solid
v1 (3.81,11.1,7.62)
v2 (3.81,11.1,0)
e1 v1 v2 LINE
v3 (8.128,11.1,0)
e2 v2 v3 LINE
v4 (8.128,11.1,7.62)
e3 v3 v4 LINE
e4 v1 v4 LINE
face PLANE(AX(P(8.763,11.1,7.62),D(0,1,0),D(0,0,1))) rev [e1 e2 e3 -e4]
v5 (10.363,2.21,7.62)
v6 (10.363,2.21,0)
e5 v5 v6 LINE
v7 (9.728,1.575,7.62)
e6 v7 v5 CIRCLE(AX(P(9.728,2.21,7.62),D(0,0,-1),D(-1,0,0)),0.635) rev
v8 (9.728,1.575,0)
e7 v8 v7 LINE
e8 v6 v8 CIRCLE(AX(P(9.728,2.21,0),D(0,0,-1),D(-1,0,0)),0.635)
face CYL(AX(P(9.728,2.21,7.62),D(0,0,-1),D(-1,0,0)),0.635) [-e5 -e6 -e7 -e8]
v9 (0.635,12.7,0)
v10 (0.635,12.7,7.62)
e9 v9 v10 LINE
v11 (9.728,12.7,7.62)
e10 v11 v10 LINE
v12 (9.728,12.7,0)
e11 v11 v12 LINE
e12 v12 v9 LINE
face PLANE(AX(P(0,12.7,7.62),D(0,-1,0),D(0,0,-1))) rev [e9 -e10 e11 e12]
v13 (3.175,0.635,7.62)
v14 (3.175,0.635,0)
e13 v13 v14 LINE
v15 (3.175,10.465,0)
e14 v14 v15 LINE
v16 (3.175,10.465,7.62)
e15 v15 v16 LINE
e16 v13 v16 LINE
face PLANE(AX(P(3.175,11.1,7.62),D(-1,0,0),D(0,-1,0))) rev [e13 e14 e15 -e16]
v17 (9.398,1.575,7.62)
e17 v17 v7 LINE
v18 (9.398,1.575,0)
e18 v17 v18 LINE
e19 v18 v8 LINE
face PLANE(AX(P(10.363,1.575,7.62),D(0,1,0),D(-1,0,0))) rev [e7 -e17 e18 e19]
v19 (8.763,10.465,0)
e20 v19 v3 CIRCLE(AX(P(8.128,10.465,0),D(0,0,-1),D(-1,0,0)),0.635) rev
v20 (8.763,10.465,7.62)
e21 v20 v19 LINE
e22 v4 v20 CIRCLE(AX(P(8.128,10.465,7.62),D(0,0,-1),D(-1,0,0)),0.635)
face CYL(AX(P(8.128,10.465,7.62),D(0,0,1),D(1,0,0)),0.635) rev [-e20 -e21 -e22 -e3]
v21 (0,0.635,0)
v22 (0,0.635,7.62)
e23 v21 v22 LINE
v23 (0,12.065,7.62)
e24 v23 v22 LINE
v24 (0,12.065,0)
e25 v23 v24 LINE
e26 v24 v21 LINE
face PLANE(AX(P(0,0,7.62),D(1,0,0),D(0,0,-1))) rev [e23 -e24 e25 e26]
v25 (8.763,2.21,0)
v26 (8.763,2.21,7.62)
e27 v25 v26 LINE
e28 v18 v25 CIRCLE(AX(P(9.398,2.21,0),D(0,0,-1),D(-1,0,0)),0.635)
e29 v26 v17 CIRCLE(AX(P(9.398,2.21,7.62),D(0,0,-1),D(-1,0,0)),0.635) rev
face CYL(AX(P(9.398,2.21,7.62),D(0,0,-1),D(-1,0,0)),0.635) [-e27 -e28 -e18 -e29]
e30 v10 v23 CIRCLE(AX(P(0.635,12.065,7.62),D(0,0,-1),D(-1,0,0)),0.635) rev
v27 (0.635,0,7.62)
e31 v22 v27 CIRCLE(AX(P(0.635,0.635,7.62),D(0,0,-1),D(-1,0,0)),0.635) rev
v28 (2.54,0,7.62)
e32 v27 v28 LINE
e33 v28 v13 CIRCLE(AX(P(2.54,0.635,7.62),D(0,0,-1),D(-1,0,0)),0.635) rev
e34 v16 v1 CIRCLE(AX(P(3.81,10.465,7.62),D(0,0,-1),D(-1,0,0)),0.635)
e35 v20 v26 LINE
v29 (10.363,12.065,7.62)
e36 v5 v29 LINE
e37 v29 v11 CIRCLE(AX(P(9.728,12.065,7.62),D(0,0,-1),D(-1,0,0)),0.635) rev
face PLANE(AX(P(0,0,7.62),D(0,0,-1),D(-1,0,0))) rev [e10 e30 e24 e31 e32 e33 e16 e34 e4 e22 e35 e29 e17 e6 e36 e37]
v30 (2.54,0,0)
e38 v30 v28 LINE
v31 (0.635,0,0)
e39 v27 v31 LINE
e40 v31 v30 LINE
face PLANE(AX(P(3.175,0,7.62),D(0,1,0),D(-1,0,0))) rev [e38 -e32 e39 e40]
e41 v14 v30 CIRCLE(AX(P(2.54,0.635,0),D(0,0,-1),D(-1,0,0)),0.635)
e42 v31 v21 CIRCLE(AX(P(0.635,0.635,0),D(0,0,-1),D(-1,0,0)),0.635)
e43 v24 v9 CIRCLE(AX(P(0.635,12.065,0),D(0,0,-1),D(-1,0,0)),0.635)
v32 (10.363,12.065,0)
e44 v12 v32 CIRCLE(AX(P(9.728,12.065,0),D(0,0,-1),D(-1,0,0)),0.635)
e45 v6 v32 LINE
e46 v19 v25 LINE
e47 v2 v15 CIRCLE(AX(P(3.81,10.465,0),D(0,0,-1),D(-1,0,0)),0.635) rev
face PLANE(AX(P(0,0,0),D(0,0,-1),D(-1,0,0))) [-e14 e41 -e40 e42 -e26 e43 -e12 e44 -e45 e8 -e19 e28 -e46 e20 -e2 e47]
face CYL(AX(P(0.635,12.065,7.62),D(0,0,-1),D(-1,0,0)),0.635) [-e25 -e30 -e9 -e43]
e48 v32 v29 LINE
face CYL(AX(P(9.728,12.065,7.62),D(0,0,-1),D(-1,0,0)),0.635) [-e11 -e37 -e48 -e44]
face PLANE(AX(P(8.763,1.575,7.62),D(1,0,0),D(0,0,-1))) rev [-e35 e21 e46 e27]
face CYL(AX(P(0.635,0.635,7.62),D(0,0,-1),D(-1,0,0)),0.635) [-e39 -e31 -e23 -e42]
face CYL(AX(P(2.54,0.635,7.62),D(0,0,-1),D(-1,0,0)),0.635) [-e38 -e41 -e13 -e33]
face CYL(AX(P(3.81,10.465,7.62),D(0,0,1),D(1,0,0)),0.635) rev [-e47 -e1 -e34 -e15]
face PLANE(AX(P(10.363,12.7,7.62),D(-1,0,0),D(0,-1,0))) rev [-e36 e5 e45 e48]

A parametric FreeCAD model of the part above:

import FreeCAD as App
import Part
import Sketcher
Q = App.Units.Quantity


def edges_at(feature, points):
    """Names of the edges that pass closest to the given points."""
    edges = feature.Shape.Edges
    near = lambda p: min(range(len(edges)), key=lambda i: edges[i].distToShape(Part.Vertex(*p))[0])
    return sorted({f"Edge{near(p) + 1}" for p in points})


def add_polygon(sketch, points):
    """Adds a closed chain of lines whose ends are joined by coincident constraints."""
    first, n = sketch.GeometryCount, len(points)
    for a, b in zip(points, points[1:] + points[:1]):
        sketch.addGeometry(Part.LineSegment(App.Vector(*a, 0), App.Vector(*b, 0)), False)
    for i in range(n):
        sketch.addConstraint(Sketcher.Constraint("Coincident", first + i, 2, first + (i + 1) % n, 1))

doc = App.newDocument("Part")
params = doc.addObject("Spreadsheet::Sheet", "Params")
for row, (alias, value) in enumerate([
    ("sketch1_height", "0.5 in"),
    ("sketch1_width", "0.22 in"),
    ("sketch1_width2", "0.125 in"),
    ("sketch1_height2", "0.375 in"),
    ("pad1_length", "0.3 in"),
    ("fillet_radius", "0.025 in"),
], start=1):
    params.set(f"A{row}", alias)
    params.set(f"B{row}", "=" + value)
    params.setAlias(f"B{row}", alias)

body = doc.addObject("PartDesign::Body", "Body")

sketch1 = body.newObject("Sketcher::SketchObject", "Sketch")
sketch1.AttachmentSupport = (doc.getObject("XY_Plane"), [""])
sketch1.MapMode = "FlatFace"
add_polygon(sketch1, [(0, 12.7), (0, 0), (3.2, 0), (3.2, 11.1), (8.8, 11.1), (8.8, 1.6), (10.4, 1.6), (10.4, 12.7)])
sketch1.addConstraint([
    Sketcher.Constraint("Vertical", 0),
    Sketcher.Constraint("Horizontal", 1),
    Sketcher.Constraint("Vertical", 2),
    Sketcher.Constraint("Horizontal", 3),
    Sketcher.Constraint("Vertical", 4),
    Sketcher.Constraint("Horizontal", 5),
    Sketcher.Constraint("Vertical", 6),
    Sketcher.Constraint("Horizontal", 7),
    Sketcher.Constraint("Coincident", 0, 2, -1, 1),
    Sketcher.Constraint("DistanceY", 0, 2, 0, 1, Q("0.5 in")),
    Sketcher.Constraint("DistanceX", 3, 1, 3, 2, Q("0.22 in")),
    Sketcher.Constraint("DistanceX", 1, 1, 1, 2, Q("0.125 in")),
    Sketcher.Constraint("DistanceY", 4, 2, 4, 1, Q("0.375 in")),
    Sketcher.Constraint("DistanceX", 5, 1, 5, 2, 1.6),
    Sketcher.Constraint("DistanceY", 2, 1, 2, 2, 11.1),
])
sketch1.setExpression("Constraints[17]", "Params.sketch1_height")
sketch1.setExpression("Constraints[18]", "Params.sketch1_width")
sketch1.setExpression("Constraints[19]", "Params.sketch1_width2")
sketch1.setExpression("Constraints[20]", "Params.sketch1_height2")
pad1 = body.newObject("PartDesign::Pad", "Pad")
pad1.Profile = sketch1
pad1.setExpression("Length", "Params.pad1_length")
doc.recompute()

fillet = body.newObject("PartDesign::Fillet", "Fillet")
fillet.Base = (pad1, edges_at(pad1, [
    (0, 0, 3.81),
    (0, 12.7, 3.81),
    (10.363, 12.7, 3.81),
    (10.363, 1.575, 3.81),
    (8.763, 1.575, 3.81),
    (8.763, 11.1, 3.81),
    (3.175, 11.1, 3.81),
    (3.175, 0, 3.81),
]))
fillet.setExpression("Radius", "Params.fillet_radius")

doc.recompute()
